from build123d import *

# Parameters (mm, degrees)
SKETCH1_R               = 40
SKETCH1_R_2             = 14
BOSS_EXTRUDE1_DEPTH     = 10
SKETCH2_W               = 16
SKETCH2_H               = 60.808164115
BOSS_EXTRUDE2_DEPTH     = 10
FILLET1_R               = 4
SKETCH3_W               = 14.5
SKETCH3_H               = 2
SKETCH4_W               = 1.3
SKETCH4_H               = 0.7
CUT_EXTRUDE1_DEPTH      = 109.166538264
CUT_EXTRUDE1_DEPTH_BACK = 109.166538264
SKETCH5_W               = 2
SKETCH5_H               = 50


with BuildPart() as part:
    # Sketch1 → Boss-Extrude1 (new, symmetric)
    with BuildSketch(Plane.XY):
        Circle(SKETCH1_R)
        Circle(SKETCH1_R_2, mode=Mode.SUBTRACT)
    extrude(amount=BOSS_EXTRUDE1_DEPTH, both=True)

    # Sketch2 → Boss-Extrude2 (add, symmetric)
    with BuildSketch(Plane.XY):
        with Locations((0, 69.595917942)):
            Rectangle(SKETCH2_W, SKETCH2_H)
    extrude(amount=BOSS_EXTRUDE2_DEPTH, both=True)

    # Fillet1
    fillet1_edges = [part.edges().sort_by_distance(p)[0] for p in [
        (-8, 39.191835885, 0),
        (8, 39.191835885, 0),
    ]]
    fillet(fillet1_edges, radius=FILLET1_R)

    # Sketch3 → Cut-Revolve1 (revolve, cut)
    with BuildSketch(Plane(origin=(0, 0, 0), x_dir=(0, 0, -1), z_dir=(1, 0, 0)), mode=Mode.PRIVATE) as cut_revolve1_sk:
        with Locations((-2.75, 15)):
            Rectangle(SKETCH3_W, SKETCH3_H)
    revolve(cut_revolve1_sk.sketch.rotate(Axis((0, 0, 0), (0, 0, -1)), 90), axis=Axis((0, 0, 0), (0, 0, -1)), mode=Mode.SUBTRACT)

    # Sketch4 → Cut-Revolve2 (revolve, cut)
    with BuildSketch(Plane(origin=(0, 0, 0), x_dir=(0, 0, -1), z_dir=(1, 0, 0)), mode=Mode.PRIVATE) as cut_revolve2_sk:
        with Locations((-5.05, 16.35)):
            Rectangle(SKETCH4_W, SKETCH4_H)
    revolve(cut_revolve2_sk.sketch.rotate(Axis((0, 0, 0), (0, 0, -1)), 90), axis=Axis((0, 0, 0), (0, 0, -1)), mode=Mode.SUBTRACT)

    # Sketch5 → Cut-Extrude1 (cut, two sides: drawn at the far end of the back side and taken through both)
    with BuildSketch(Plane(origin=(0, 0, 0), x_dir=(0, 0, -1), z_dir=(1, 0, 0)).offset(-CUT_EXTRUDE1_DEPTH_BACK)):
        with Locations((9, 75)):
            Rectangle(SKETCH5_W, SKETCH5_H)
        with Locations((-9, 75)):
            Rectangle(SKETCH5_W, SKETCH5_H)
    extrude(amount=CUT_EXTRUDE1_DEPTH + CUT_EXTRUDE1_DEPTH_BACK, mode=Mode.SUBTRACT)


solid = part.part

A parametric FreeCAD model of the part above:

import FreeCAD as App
import Part
import Sketcher
from FreeCAD import Vector


def edges_at(feature, points):
    """Names of the edges that pass closest to the given points."""
    edges = feature.Shape.Edges
    near = lambda p: min(range(len(edges)), key=lambda i: edges[i].distToShape(Part.Vertex(*p))[0])
    return sorted({f"Edge{near(p) + 1}" for p in points})


def add_polygon(sketch, points):
    """Adds a closed chain of lines whose ends are joined by coincident constraints."""
    first, n = sketch.GeometryCount, len(points)
    for a, b in zip(points, points[1:] + points[:1]):
        sketch.addGeometry(Part.LineSegment(App.Vector(*a, 0), App.Vector(*b, 0)), False)
    for i in range(n):
        sketch.addConstraint(Sketcher.Constraint("Coincident", first + i, 2, first + (i + 1) % n, 1))

doc = App.newDocument("Part")
body = doc.addObject("PartDesign::Body", "Body")

sketch1 = doc.addObject("Sketcher::SketchObject", "Sketch")
body.addObject(sketch1)
sketch1.AttachmentSupport = (doc.XY_Plane, [""])
sketch1.MapMode = "FlatFace"
sketch1.addGeometry([
    Part.Circle(Vector(0, 0, 0), Vector(0, 0, 1), 40),
    Part.Circle(Vector(0, 0, 0), Vector(0, 0, 1), 14),
], False)
sketch1.addConstraint([
    Sketcher.Constraint("Coincident", 0, 3, -1, 1),
    Sketcher.Constraint("Coincident", 1, 3, -1, 1),
    Sketcher.Constraint("Diameter", 0, 80.0),
    Sketcher.Constraint("Diameter", 1, 28.0),
])
pad1 = doc.addObject("PartDesign::Pad", "Pad")
body.addObject(pad1)
pad1.Profile = sketch1
pad1.Length = 20
pad1.Midplane = True

sketch2 = doc.addObject("Sketcher::SketchObject", "Sketch001")
body.addObject(sketch2)
sketch2.AttachmentSupport = (doc.XY_Plane, [""])
sketch2.MapMode = "FlatFace"
add_polygon(sketch2, [(-8, 100), (-8, 39), (8, 39), (8, 100)])
sketch2.addConstraint([
    Sketcher.Constraint("Vertical", 0),
    Sketcher.Constraint("Horizontal", 1),
    Sketcher.Constraint("Vertical", 2),
    Sketcher.Constraint("Horizontal", 3),
    Sketcher.Constraint("DistanceX", 1, 1, 1, 2, 16.0),
    Sketcher.Constraint("DistanceX", 0, 2, -1, 1, 8.0),
    Sketcher.Constraint("DistanceY", -1, 1, 2, 2, 100.0),
    Sketcher.Constraint("DistanceY", 0, 2, 0, 1, 60.808164),
])
pad2 = doc.addObject("PartDesign::Pad", "Pad001")
body.addObject(pad2)
pad2.Profile = sketch2
pad2.Length = 20
pad2.Midplane = True
doc.recompute()

fillet = doc.addObject("PartDesign::Fillet", "Fillet")
body.addObject(fillet)
fillet.Base = (pad2, edges_at(pad2, [(-8, 39.192, 0), (8, 39.192, 0)]))
fillet.Radius = 4

sketch3 = doc.addObject("Sketcher::SketchObject", "Sketch002")
body.addObject(sketch3)
sketch3.AttachmentSupport = (doc.YZ_Plane, [""])
sketch3.MapMode = "FlatFace"
add_polygon(sketch3, [(16, 10), (14, 10), (14, -4.5), (16, -4.5)])
sketch3.addConstraint([
    Sketcher.Constraint("Horizontal", 0),
    Sketcher.Constraint("Vertical", 1),
    Sketcher.Constraint("Horizontal", 2),
    Sketcher.Constraint("Vertical", 3),
    Sketcher.Constraint("DistanceX", 0, 2, 0, 1, 2.0),
    Sketcher.Constraint("DistanceY", 1, 2, 1, 1, 14.5),
    Sketcher.Constraint("DistanceX", -1, 1, 0, 2, 14.0),
    Sketcher.Constraint("DistanceY", -1, 1, 0, 2, 10.0),
])
groove = doc.addObject("PartDesign::Groove", "Groove")
body.addObject(groove)
groove.Profile = sketch3
groove.ReferenceAxis = (sketch3, ["V_Axis"])
groove.Angle = 360

sketch4 = doc.addObject("Sketcher::SketchObject", "Sketch003")
body.addObject(sketch4)
sketch4.AttachmentSupport = (doc.YZ_Plane, [""])
sketch4.MapMode = "FlatFace"
add_polygon(sketch4, [(16.7, 5.7), (16, 5.7), (16, 4.4), (16.7, 4.4)])
sketch4.addConstraint([
    Sketcher.Constraint("Horizontal", 0),
    Sketcher.Constraint("Vertical", 1),
    Sketcher.Constraint("Horizontal", 2),
    Sketcher.Constraint("Vertical", 3),
    Sketcher.Constraint("DistanceX", 0, 2, 0, 1, 0.7),
    Sketcher.Constraint("DistanceY", 1, 2, 1, 1, 1.3),
    Sketcher.Constraint("DistanceX", -1, 1, 0, 2, 16.0),
    Sketcher.Constraint("DistanceY", -1, 1, 0, 2, 5.7),
])
groove2 = doc.addObject("PartDesign::Groove", "Groove001")
body.addObject(groove2)
groove2.Profile = sketch4
groove2.ReferenceAxis = (sketch4, ["V_Axis"])
groove2.Angle = 360

sketch5 = doc.addObject("Sketcher::SketchObject", "Sketch004")
body.addObject(sketch5)
sketch5.AttachmentSupport = (doc.YZ_Plane, [""])
sketch5.MapMode = "FlatFace"
add_polygon(sketch5, [(100, -8), (50, -8), (50, -10), (100, -10)])
add_polygon(sketch5, [(100, 10), (50, 10), (50, 8), (100, 8)])
sketch5.addConstraint([
    Sketcher.Constraint("Horizontal", 0),
    Sketcher.Constraint("Vertical", 1),
    Sketcher.Constraint("Horizontal", 2),
    Sketcher.Constraint("Vertical", 3),
    Sketcher.Constraint("Horizontal", 4),
    Sketcher.Constraint("Vertical", 5),
    Sketcher.Constraint("Horizontal", 6),
    Sketcher.Constraint("Vertical", 7),
    Sketcher.Constraint("Symmetric", 1, 2, 4, 2, -1),
    Sketcher.Constraint("Symmetric", 3, 2, 6, 2, -1),
    Sketcher.Constraint("DistanceX", 0, 2, 0, 1, 50.0),
    Sketcher.Constraint("DistanceY", 1, 2, 1, 1, 2.0),
    Sketcher.Constraint("DistanceX", -1, 1, 0, 2, 50.0),
    Sketcher.Constraint("DistanceY", 0, 2, -1, 1, 8.0),
])
pocket1 = doc.addObject("PartDesign::Pocket", "Pocket")
body.addObject(pocket1)
pocket1.Profile = sketch5
pocket1.Type = "ThroughAll"
pocket1.Midplane = True

doc.recompute()
